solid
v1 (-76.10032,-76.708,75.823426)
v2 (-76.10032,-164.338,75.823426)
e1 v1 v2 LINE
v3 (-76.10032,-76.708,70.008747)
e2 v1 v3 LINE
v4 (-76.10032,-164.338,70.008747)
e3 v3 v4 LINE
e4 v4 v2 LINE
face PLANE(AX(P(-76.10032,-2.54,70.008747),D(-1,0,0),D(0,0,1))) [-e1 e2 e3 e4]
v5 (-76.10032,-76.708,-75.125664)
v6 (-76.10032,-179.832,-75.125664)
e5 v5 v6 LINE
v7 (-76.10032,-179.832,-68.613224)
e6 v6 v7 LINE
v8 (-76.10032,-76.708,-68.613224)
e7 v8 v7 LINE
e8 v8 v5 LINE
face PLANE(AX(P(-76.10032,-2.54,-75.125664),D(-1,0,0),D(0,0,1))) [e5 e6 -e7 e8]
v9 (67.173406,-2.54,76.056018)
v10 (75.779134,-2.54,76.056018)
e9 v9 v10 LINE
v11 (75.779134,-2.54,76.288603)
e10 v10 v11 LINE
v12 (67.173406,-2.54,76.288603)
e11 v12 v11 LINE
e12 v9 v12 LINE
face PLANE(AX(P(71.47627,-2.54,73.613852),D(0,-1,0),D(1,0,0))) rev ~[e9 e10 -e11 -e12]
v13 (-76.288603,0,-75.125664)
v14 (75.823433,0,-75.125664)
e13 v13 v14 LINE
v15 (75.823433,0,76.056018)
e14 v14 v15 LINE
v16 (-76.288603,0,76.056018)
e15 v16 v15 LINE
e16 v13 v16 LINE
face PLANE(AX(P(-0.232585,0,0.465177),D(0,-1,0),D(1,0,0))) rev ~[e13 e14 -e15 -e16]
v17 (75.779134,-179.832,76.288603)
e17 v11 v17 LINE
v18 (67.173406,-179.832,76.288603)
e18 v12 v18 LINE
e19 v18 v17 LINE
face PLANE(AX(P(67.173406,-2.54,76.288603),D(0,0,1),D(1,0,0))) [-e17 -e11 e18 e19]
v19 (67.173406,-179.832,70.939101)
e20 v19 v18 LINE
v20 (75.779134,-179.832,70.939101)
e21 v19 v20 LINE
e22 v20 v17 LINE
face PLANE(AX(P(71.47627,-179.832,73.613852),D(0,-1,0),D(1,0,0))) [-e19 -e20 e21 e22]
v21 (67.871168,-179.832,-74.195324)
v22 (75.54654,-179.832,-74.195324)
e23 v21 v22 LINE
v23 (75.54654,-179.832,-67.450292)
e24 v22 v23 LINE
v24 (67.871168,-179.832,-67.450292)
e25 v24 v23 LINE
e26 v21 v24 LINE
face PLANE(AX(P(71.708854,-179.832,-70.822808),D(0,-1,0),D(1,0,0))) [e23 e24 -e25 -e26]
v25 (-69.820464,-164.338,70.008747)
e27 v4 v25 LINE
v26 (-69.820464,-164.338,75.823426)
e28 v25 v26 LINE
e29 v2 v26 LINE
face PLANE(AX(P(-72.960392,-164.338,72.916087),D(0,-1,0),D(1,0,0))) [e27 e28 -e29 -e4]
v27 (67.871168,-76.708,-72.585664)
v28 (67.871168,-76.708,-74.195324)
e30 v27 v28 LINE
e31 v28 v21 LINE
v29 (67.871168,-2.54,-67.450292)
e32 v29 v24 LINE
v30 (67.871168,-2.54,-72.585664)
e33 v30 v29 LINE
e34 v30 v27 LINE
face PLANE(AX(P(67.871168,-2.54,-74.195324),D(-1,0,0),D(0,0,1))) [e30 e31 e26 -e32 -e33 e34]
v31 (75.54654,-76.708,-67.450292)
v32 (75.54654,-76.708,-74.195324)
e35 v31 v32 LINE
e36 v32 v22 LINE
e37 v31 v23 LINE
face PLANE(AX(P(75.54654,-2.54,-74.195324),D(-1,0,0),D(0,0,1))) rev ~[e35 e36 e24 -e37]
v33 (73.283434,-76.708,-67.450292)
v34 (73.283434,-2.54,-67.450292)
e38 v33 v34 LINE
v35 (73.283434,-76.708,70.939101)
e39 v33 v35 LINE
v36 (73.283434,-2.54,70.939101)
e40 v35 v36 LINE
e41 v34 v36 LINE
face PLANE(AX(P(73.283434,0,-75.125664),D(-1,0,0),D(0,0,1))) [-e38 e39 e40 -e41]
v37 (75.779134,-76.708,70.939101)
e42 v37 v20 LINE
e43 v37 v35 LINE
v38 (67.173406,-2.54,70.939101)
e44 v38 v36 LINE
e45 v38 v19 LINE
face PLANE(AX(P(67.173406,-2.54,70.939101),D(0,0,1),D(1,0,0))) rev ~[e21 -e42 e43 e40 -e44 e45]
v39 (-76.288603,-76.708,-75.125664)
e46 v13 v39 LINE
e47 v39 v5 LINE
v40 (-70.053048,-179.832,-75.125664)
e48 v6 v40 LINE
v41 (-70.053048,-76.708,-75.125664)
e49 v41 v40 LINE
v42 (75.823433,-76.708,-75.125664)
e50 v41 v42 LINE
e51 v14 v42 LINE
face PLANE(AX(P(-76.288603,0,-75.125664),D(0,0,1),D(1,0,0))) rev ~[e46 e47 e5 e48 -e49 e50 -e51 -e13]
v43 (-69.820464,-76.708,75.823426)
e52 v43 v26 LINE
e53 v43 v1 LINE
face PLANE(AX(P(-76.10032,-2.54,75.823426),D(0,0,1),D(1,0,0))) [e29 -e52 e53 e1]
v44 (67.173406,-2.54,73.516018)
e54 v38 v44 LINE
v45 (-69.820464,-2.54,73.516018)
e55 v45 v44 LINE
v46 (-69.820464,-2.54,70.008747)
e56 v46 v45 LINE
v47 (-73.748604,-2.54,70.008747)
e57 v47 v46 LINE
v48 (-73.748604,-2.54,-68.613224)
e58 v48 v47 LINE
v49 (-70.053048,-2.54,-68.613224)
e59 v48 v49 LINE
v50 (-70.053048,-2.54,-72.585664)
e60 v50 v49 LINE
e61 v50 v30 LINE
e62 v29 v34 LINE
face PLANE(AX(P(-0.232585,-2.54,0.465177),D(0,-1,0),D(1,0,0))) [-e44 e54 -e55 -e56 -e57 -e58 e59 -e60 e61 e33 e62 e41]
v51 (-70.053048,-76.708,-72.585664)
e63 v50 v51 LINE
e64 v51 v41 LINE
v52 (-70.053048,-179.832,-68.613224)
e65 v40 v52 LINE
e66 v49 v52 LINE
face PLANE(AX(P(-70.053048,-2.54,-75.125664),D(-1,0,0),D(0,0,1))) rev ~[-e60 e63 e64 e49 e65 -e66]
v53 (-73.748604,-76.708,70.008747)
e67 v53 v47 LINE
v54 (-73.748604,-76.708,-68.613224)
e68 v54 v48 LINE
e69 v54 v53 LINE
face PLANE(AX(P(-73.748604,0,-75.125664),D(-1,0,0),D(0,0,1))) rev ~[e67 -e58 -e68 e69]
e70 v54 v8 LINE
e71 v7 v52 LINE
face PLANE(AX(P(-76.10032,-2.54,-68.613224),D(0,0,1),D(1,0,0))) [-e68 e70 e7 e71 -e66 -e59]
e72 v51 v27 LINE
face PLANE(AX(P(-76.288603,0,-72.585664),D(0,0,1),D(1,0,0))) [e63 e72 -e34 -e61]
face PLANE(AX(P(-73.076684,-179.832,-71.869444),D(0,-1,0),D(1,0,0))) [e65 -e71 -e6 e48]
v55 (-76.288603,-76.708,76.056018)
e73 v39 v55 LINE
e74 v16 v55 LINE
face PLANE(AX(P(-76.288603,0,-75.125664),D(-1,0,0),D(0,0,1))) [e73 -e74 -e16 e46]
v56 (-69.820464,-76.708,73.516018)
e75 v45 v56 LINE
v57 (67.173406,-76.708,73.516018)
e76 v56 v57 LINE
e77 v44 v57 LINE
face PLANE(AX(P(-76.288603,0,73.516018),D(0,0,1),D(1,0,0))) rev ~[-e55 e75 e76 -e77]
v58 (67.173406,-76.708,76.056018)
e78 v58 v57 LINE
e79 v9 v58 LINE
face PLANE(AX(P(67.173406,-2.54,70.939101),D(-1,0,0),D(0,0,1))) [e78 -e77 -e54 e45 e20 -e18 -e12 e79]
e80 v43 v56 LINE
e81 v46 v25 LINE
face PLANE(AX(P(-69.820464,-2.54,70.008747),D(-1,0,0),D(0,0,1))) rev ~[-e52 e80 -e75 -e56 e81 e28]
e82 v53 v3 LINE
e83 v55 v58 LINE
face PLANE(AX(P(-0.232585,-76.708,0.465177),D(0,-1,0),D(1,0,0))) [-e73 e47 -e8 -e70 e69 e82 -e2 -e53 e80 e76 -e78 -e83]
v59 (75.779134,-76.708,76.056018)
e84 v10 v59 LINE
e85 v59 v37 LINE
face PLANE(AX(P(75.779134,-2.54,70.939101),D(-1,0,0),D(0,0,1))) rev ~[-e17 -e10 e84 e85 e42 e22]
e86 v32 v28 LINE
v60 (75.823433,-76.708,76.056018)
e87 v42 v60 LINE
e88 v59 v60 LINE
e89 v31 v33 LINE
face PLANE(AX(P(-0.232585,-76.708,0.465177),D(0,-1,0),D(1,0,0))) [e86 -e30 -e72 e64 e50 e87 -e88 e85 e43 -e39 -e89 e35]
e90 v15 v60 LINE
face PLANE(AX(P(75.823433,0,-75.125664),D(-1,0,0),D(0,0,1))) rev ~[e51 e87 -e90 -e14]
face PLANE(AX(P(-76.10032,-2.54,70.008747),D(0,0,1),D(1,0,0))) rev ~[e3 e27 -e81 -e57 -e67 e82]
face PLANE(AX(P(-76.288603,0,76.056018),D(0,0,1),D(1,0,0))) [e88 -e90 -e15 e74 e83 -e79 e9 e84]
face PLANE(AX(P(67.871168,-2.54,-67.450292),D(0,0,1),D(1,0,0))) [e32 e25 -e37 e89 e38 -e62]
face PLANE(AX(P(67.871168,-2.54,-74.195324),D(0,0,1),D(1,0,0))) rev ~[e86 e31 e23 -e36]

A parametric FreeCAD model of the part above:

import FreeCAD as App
import Part
import Sketcher

V = App.Vector
Q = App.Units.Quantity


def faces_at(feature, points):
    """Names of the faces that lie closest to the given points."""
    faces = feature.Shape.Faces
    near = lambda p: min(range(len(faces)), key=lambda i: faces[i].distToShape(Part.Vertex(*p))[0])
    return sorted({f"Face{near(p) + 1}" for p in points})

doc = App.newDocument("Part")
body = doc.addObject("PartDesign::Body", "Body")

# Sketch on XZ plane
sketch1 = doc.addObject("Sketcher::SketchObject", "Sketch")
body.addObject(sketch1)
sketch1.AttachmentSupport = (doc.XZ_Plane, [""])
sketch1.MapMode = "FlatFace"
sketch1.addGeometry([
    Part.LineSegment(V(-76, 76, 0), V(-76, -75, 0)),
    Part.LineSegment(V(-76, -75, 0), V(76, -75, 0)),
    Part.LineSegment(V(76, -75, 0), V(76, 76, 0)),
    Part.LineSegment(V(76, 76, 0), V(-76, 76, 0)),
], False)
sketch1.addConstraint([
    Sketcher.Constraint("Coincident", 0, 2, 1, 1),
    Sketcher.Constraint("Coincident", 1, 2, 2, 1),
    Sketcher.Constraint("Coincident", 2, 2, 3, 1),
    Sketcher.Constraint("Coincident", 3, 2, 0, 1),
    Sketcher.Constraint("Vertical", 0),
    Sketcher.Constraint("Horizontal", 1),
    Sketcher.Constraint("Vertical", 2),
    Sketcher.Constraint("Horizontal", 3),
    Sketcher.Constraint("DistanceY", 0, 2, 0, 1, 151.181682),
    Sketcher.Constraint("DistanceX", 1, 1, 1, 2, 152.112037),
    Sketcher.Constraint("DistanceX", 0, 2, -1, 1, 76.288603),
    Sketcher.Constraint("DistanceY", 0, 2, -1, 1, 75.125664),
])
pad1 = doc.addObject("PartDesign::Pad", "Pad")
body.addObject(pad1)
pad1.Profile = sketch1
pad1.Length = Q("3.02 in")
doc.recompute()

thickness = doc.addObject("PartDesign::Thickness", "Thickness")
body.addObject(thickness)
thickness.Base = (pad1, faces_at(pad1, [(-0.233, -76.708, 0.465)]))
thickness.Value = Q("0.1 in")
thickness.Reversed = True
thickness.Join = "Arc"

# Sketch on XZ plane
sketch2 = doc.addObject("Sketcher::SketchObject", "Sketch001")
body.addObject(sketch2)
sketch2.AttachmentSupport = (doc.XZ_Plane, [""])
sketch2.MapMode = "FlatFace"
sketch2.AttachmentOffset = App.Placement(V(0, 0, 0.1 * 25.4), App.Rotation())
sketch2.addGeometry([
    Part.LineSegment(V(-76, 76, 0), V(-76, 70, 0)),
    Part.LineSegment(V(-76, 70, 0), V(-70, 70, 0)),
    Part.LineSegment(V(-70, 70, 0), V(-70, 76, 0)),
    Part.LineSegment(V(-70, 76, 0), V(-76, 76, 0)),
], False)
sketch2.addConstraint([
    Sketcher.Constraint("Coincident", 0, 2, 1, 1),
    Sketcher.Constraint("Coincident", 1, 2, 2, 1),
    Sketcher.Constraint("Coincident", 2, 2, 3, 1),
    Sketcher.Constraint("Coincident", 3, 2, 0, 1),
    Sketcher.Constraint("Vertical", 0),
    Sketcher.Constraint("Horizontal", 1),
    Sketcher.Constraint("Vertical", 2),
    Sketcher.Constraint("Horizontal", 3),
    Sketcher.Constraint("DistanceY", 0, 2, 0, 1, 5.814679),
    Sketcher.Constraint("DistanceX", 1, 1, 1, 2, 6.279856),
    Sketcher.Constraint("DistanceX", 0, 2, -1, 1, 76.10032),
    Sketcher.Constraint("DistanceY", -1, 1, 0, 2, 70.008747),
])
pad2 = doc.addObject("PartDesign::Pad", "Pad001")
body.addObject(pad2)
pad2.Profile = sketch2
pad2.Length = Q("6.37 in")

# Sketch on XZ plane
sketch3 = doc.addObject("Sketcher::SketchObject", "Sketch002")
body.addObject(sketch3)
sketch3.AttachmentSupport = (doc.XZ_Plane, [""])
sketch3.MapMode = "FlatFace"
sketch3.AttachmentOffset = App.Placement(V(0, 0, 0.1 * 25.4), App.Rotation())
sketch3.addGeometry([
    Part.LineSegment(V(68, -67, 0), V(68, -74, 0)),  # 0
    Part.LineSegment(V(68, -74, 0), V(76, -74, 0)),  # 1
    Part.LineSegment(V(76, -74, 0), V(76, -67, 0)),  # 2
    Part.LineSegment(V(76, -67, 0), V(68, -67, 0)),  # 3
    Part.LineSegment(V(-76, -69, 0), V(-76, -75, 0)),  # 4
    Part.LineSegment(V(-76, -75, 0), V(-70, -75, 0)),  # 5
    Part.LineSegment(V(-70, -75, 0), V(-70, -69, 0)),  # 6
    Part.LineSegment(V(-70, -69, 0), V(-76, -69, 0)),  # 7
    Part.LineSegment(V(67, 76, 0), V(67, 71, 0)),  # 8
    Part.LineSegment(V(67, 71, 0), V(76, 71, 0)),  # 9
    Part.LineSegment(V(76, 71, 0), V(76, 76, 0)),  # 10
    Part.LineSegment(V(76, 76, 0), V(67, 76, 0)),  # 11
], False)
sketch3.addConstraint([
    Sketcher.Constraint("Coincident", 0, 2, 1, 1),
    Sketcher.Constraint("Coincident", 1, 2, 2, 1),
    Sketcher.Constraint("Coincident", 2, 2, 3, 1),
    Sketcher.Constraint("Coincident", 3, 2, 0, 1),
    Sketcher.Constraint("Coincident", 4, 2, 5, 1),
    Sketcher.Constraint("Coincident", 5, 2, 6, 1),
    Sketcher.Constraint("Coincident", 6, 2, 7, 1),
    Sketcher.Constraint("Coincident", 7, 2, 4, 1),
    Sketcher.Constraint("Coincident", 8, 2, 9, 1),
    Sketcher.Constraint("Coincident", 9, 2, 10, 1),
    Sketcher.Constraint("Coincident", 10, 2, 11, 1),
    Sketcher.Constraint("Coincident", 11, 2, 8, 1),
    Sketcher.Constraint("Vertical", 0),
    Sketcher.Constraint("Horizontal", 1),
    Sketcher.Constraint("Vertical", 2),
    Sketcher.Constraint("Horizontal", 3),
    Sketcher.Constraint("Vertical", 4),
    Sketcher.Constraint("Horizontal", 5),
    Sketcher.Constraint("Vertical", 6),
    Sketcher.Constraint("Horizontal", 7),
    Sketcher.Constraint("Vertical", 8),
    Sketcher.Constraint("Horizontal", 9),
    Sketcher.Constraint("Vertical", 10),
    Sketcher.Constraint("Horizontal", 11),
    Sketcher.Constraint("DistanceX", 1, 1, 1, 2, 7.675372),
    Sketcher.Constraint("DistanceX", 5, 1, 5, 2, 6.047272),
    Sketcher.Constraint("DistanceY", 4, 2, 4, 1, 6.51244),
    Sketcher.Constraint("DistanceY", -1, 1, 8, 2, 70.939101),
    Sketcher.Constraint("DistanceY", 0, 2, 6, 2, 5.5821),
    Sketcher.Constraint("DistanceX", 9, 1, 9, 2, 8.605727),
    Sketcher.Constraint("DistanceY", 0, 2, 0, 1, 6.745033),
    Sketcher.Constraint("DistanceY", 8, 2, 8, 1, 5.349502),
    Sketcher.Constraint("DistanceX", -1, 1, 1, 2, 75.54654),
    Sketcher.Constraint("DistanceY", 2, 2, -1, 1, 67.450292),
    Sketcher.Constraint("DistanceX", 4, 2, -1, 1, 76.10032),
    Sketcher.Constraint("DistanceX", 8, 2, 3, 2, 0.697761),
])
pad3 = doc.addObject("PartDesign::Pad", "Pad002")
body.addObject(pad3)
pad3.Profile = sketch3
pad3.Length = Q("6.98 in")

doc.recompute()
